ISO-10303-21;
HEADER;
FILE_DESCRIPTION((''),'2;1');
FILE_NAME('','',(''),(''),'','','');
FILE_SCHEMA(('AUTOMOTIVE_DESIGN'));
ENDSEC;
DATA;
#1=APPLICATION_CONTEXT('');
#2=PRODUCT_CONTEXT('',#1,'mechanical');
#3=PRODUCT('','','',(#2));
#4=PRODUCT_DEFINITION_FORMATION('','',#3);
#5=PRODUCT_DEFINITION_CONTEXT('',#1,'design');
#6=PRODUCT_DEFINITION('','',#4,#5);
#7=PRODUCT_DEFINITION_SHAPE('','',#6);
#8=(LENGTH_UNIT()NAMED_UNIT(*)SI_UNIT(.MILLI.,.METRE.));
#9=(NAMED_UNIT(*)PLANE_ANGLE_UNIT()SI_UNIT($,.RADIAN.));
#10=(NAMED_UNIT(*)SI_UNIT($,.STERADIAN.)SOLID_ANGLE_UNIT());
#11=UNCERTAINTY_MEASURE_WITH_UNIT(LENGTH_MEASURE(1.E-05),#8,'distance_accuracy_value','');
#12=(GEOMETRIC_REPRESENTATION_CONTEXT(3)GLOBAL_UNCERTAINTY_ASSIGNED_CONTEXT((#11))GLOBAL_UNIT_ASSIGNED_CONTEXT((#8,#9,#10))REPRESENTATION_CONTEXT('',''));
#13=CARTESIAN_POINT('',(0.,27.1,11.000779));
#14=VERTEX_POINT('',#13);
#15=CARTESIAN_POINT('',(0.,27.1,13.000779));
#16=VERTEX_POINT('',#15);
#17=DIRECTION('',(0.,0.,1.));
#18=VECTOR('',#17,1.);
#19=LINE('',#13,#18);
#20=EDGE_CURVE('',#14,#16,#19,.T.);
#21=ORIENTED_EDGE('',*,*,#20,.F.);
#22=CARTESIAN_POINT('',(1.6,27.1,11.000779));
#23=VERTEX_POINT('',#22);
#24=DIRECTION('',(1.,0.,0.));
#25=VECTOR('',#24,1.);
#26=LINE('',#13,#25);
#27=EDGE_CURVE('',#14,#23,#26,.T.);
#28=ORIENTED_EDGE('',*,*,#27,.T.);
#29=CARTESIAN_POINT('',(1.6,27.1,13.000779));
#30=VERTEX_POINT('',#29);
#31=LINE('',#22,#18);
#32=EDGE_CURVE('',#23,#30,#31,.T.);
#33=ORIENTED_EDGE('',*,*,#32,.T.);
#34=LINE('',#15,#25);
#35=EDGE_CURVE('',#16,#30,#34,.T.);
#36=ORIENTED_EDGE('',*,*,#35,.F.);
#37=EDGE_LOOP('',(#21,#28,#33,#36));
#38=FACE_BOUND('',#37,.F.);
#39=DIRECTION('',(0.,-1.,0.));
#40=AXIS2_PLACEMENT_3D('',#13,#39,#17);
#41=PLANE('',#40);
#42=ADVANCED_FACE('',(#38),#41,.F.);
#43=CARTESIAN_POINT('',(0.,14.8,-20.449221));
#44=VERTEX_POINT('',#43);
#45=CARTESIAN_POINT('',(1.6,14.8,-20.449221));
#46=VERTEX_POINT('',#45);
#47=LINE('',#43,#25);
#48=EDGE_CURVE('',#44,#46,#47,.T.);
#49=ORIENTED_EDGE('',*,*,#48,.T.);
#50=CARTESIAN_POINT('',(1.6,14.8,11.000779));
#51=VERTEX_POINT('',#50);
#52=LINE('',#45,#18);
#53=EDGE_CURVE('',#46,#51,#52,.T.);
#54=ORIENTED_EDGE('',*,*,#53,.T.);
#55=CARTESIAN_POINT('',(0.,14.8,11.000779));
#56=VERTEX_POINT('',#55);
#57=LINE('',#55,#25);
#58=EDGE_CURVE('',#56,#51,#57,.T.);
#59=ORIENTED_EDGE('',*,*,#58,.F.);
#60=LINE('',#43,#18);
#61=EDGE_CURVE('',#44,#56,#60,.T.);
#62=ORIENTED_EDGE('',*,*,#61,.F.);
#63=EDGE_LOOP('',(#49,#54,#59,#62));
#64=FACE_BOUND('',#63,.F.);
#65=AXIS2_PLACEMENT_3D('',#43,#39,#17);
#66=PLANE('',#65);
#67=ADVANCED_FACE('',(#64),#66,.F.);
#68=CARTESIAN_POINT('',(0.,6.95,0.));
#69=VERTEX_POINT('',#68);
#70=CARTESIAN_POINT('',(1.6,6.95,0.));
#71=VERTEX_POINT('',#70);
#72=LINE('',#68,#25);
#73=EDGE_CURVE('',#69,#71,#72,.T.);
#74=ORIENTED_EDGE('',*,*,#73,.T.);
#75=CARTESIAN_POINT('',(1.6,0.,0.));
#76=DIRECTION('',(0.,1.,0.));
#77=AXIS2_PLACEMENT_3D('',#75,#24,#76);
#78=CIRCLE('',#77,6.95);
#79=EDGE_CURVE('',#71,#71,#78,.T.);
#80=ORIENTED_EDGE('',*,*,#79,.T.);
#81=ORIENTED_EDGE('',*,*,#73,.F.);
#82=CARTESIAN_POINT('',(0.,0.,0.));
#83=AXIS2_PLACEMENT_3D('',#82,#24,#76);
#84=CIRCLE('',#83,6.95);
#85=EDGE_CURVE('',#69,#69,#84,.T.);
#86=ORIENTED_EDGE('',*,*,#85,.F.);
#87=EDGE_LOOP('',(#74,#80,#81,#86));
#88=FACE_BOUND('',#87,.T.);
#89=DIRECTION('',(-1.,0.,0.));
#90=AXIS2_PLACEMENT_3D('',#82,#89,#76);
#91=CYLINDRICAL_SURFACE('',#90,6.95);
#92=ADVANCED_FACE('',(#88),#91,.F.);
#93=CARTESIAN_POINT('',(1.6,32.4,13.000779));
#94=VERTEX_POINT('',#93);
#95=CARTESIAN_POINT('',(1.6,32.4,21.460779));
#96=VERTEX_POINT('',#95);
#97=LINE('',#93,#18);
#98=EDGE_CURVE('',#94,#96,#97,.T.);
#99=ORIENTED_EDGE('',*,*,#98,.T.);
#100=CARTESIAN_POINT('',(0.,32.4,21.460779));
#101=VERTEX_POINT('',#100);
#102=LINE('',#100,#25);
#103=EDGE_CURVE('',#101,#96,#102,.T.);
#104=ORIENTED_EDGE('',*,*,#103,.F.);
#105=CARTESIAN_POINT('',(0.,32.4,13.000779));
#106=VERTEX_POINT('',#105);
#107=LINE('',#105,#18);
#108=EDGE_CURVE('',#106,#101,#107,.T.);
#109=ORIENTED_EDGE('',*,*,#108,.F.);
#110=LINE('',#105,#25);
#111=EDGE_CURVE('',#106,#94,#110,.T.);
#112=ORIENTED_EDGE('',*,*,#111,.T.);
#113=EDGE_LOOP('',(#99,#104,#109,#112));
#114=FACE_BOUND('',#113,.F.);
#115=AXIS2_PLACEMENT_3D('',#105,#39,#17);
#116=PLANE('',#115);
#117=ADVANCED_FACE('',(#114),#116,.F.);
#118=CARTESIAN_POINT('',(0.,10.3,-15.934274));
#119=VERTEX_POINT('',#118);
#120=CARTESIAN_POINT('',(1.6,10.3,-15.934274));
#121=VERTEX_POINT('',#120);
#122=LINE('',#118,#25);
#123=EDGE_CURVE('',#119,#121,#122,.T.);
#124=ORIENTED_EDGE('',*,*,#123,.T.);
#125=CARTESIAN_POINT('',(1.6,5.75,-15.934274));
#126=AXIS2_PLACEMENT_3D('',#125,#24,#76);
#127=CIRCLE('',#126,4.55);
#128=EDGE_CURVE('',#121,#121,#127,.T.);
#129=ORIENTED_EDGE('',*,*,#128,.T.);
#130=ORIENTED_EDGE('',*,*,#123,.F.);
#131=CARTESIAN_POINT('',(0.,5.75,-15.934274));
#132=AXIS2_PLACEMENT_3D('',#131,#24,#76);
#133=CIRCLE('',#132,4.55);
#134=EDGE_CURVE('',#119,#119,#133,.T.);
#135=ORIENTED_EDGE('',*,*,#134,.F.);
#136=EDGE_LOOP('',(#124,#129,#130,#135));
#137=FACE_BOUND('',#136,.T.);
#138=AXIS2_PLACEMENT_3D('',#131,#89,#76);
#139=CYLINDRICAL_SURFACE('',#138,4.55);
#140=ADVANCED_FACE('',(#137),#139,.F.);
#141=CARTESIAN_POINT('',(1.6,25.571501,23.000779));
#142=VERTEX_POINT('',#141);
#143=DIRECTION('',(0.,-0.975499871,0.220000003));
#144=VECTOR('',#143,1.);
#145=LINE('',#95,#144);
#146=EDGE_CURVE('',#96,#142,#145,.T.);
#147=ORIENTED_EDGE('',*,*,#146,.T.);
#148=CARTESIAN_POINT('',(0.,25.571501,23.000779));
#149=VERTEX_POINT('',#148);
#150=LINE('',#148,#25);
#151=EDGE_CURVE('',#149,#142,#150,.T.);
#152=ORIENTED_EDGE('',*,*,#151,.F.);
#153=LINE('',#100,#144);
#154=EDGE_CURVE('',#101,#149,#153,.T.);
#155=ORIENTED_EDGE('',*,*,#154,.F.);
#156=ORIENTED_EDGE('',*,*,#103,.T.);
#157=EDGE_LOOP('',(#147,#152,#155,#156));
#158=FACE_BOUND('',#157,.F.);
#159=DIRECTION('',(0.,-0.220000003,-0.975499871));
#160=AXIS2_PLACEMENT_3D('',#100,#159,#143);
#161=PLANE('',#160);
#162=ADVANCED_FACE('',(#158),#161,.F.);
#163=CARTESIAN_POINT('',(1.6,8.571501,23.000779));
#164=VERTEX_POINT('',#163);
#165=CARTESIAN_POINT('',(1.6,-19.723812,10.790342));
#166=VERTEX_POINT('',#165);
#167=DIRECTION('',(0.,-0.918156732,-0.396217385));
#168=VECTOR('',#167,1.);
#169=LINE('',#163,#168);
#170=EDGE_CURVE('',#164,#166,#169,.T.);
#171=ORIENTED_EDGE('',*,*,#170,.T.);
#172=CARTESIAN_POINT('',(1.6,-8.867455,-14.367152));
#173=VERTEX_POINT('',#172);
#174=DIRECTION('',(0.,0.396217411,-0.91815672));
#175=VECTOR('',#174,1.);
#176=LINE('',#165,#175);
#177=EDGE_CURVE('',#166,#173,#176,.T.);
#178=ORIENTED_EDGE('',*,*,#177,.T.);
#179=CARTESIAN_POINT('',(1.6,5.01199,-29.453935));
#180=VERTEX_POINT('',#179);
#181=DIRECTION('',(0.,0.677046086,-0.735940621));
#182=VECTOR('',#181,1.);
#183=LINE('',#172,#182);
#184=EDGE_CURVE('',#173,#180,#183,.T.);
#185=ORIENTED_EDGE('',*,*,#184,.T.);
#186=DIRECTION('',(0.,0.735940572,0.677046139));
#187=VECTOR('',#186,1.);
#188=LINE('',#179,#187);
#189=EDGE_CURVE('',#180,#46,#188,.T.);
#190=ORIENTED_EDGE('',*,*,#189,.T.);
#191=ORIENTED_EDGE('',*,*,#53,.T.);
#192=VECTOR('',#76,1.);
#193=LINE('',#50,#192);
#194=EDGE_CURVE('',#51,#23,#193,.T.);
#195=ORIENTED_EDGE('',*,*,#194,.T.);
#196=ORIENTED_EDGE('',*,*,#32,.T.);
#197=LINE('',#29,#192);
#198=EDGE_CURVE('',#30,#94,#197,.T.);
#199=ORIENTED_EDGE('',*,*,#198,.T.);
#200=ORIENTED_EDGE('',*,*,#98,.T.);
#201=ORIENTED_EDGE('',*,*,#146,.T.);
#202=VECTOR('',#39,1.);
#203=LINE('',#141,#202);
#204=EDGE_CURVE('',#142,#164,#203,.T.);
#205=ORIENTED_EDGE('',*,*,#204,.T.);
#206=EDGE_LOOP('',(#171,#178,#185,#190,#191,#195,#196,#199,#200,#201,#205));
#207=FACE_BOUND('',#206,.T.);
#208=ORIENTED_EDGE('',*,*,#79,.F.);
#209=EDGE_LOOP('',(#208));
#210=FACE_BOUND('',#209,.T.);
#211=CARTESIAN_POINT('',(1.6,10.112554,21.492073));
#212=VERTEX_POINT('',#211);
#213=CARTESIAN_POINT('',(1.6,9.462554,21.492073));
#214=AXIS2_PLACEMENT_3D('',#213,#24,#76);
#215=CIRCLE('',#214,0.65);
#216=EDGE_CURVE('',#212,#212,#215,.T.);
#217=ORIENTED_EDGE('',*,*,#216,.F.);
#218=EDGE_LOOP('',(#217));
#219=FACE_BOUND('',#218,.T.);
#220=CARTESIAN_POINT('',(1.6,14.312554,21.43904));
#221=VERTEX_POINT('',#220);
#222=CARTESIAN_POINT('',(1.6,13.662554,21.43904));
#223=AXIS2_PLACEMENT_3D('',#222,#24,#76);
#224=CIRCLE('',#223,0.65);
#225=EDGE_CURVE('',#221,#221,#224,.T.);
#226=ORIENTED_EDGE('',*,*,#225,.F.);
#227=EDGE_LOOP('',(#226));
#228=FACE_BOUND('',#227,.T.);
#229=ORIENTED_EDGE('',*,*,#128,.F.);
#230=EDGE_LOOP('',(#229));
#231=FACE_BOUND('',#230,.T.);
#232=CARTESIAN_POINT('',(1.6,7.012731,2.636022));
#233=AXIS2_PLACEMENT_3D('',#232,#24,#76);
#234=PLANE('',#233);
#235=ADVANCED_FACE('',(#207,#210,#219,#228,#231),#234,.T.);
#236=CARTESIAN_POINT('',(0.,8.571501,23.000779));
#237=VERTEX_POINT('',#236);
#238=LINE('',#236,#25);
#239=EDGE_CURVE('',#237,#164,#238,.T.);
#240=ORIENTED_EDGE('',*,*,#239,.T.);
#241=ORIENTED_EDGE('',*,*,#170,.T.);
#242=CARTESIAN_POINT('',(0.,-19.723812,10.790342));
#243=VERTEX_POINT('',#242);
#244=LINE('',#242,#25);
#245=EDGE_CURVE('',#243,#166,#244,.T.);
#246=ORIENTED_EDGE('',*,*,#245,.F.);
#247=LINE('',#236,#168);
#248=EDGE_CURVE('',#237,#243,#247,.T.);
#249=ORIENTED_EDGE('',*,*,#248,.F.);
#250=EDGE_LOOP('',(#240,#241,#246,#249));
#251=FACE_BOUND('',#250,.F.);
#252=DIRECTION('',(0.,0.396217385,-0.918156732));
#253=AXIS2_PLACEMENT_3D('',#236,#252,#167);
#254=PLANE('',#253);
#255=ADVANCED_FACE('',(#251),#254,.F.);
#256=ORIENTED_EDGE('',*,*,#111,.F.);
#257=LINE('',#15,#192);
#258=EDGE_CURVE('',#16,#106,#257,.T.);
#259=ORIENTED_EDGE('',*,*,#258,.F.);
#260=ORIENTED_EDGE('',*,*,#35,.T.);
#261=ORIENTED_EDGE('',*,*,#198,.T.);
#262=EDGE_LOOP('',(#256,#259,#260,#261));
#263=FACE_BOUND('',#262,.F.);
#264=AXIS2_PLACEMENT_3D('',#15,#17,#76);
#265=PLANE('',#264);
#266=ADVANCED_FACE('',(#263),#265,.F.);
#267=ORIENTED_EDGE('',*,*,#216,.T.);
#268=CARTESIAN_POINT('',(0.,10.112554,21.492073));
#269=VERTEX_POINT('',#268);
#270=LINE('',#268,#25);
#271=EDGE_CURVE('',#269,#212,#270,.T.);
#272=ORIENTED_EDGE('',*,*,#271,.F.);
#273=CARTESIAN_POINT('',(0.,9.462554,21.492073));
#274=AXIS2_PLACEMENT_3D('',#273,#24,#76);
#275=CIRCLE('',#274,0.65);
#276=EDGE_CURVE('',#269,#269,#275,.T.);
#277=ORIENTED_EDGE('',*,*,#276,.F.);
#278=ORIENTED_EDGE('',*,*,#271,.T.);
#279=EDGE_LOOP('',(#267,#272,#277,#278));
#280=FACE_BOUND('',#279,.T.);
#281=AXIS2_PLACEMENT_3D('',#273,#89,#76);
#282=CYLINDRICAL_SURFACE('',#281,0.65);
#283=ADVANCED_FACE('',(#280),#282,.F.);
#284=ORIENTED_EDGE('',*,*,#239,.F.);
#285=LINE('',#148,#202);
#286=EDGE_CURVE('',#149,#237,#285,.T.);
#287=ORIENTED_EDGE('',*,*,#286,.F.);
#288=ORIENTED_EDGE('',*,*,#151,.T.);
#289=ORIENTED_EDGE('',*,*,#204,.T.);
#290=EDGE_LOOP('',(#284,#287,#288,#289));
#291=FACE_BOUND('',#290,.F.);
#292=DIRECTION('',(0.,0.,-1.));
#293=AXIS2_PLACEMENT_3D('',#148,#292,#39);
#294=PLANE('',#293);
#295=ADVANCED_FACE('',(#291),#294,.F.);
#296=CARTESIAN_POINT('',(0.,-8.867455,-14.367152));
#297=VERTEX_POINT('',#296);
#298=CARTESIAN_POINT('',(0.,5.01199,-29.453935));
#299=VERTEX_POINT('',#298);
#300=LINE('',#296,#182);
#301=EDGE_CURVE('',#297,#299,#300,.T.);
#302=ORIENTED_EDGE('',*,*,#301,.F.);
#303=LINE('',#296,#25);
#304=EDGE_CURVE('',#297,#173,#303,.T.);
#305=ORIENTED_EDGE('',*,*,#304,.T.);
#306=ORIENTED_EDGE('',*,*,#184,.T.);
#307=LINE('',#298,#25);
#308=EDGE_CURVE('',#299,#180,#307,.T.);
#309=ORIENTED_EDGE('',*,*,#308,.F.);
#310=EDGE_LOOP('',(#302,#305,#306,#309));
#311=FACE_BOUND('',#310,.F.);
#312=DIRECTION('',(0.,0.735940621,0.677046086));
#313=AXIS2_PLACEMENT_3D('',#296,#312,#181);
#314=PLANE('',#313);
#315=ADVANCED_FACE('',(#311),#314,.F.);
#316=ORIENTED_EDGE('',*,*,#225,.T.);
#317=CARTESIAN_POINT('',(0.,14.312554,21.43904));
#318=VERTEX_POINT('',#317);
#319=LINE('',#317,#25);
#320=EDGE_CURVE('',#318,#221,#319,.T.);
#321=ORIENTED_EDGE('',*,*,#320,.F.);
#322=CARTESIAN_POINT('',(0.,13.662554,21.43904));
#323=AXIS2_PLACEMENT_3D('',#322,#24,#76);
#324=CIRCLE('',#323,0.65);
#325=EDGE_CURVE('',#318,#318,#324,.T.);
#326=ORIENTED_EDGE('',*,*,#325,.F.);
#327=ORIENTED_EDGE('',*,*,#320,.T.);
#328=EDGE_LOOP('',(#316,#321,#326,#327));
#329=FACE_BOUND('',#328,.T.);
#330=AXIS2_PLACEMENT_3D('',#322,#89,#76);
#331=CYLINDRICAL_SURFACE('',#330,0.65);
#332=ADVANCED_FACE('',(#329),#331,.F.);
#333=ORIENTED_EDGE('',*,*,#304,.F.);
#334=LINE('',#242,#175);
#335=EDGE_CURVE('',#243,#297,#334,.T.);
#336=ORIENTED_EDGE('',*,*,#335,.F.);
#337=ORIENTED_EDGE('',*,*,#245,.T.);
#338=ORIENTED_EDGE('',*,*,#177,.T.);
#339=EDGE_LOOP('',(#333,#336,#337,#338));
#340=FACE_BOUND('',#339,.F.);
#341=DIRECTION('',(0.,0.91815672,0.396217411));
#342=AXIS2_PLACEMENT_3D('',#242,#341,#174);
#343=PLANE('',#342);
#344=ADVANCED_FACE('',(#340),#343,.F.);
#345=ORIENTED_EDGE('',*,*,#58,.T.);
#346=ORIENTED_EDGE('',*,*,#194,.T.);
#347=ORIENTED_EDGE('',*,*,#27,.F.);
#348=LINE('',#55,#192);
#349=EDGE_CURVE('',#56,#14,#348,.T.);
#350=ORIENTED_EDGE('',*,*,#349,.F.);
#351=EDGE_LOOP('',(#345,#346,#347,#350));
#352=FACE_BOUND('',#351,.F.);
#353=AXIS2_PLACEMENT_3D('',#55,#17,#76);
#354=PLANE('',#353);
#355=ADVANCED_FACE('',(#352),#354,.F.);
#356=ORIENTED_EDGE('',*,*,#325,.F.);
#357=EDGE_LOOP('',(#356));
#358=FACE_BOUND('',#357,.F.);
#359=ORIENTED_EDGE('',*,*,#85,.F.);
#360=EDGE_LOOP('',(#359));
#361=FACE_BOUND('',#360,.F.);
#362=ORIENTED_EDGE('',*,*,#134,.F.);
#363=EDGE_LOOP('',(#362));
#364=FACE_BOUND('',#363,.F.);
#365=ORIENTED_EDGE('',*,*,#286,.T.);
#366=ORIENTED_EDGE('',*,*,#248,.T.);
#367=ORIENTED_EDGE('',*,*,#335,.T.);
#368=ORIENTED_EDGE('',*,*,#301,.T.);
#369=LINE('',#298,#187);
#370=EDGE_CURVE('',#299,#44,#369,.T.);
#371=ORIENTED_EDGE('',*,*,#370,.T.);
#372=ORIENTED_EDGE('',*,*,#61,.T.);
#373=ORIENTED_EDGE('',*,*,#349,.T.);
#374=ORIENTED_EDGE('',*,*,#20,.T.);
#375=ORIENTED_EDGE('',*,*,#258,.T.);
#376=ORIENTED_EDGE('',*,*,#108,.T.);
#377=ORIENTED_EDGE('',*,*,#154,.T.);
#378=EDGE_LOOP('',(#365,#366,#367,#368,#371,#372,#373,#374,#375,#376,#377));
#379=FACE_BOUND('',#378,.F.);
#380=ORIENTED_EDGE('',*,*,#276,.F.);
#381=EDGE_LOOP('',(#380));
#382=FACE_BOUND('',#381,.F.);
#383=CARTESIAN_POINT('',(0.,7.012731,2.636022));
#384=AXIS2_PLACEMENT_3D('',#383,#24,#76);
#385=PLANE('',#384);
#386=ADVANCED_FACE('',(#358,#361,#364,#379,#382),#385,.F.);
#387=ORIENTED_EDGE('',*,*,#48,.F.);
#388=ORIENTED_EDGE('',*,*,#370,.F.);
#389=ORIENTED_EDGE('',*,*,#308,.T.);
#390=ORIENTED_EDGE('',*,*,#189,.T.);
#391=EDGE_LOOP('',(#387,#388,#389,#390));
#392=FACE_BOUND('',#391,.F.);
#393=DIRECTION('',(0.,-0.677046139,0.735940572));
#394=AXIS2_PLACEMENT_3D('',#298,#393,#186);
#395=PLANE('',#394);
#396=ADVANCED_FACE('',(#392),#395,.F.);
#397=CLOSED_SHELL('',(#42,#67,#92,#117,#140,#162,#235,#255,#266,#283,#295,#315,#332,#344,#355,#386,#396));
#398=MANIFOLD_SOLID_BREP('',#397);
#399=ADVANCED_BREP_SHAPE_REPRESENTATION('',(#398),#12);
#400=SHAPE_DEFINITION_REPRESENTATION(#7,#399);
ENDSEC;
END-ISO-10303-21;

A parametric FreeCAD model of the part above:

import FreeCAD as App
import Part
import Sketcher

V = App.Vector
Q = App.Units.Quantity


def add_polygon(sketch, points):
    """Adds a closed chain of lines whose ends are joined by coincident constraints."""
    first, n = sketch.GeometryCount, len(points)
    for a, b in zip(points, points[1:] + points[:1]):
        sketch.addGeometry(Part.LineSegment(App.Vector(*a, 0), App.Vector(*b, 0)), False)
    for i in range(n):
        sketch.addConstraint(Sketcher.Constraint("Coincident", first + i, 2, first + (i + 1) % n, 1))

doc = App.newDocument("Part")
body = doc.addObject("PartDesign::Body", "Body")

# Sketch on YZ plane
sketch1 = body.newObject("Sketcher::SketchObject", "Sketch")
sketch1.AttachmentSupport = (doc.getObject("YZ_Plane"), [""])
sketch1.MapMode = "FlatFace"
add_polygon(sketch1, [(5, -29.5), (14.8, -20.4), (14.8, 11), (27.1, 11), (27.1, 13), (32.4, 13), (32.4, 21.5), (25.6, 23), (8.6, 23), (-19.7, 10.8), (-8.9, -14.4)])  # lines 0-10
sketch1.addGeometry(Part.Circle(V(0, 0, 0), V(0, 0, 1), 7), False)  # 11
sketch1.addGeometry(Part.Circle(V(5.8, -15.9, 0), V(0, 0, 1), 4.5), False)  # 12
sketch1.addGeometry(Part.Circle(V(9.5, 21.5, 0), V(0, 0, 1), 0.7), False)  # 13
sketch1.addGeometry(Part.Circle(V(13.7, 21.4, 0), V(0, 0, 1), 0.7), False)  # 14
sketch1.addConstraint(Sketcher.Constraint("Vertical", 1))
sketch1.addConstraint(Sketcher.Constraint("Horizontal", 2))
sketch1.addConstraint(Sketcher.Constraint("Vertical", 3))
sketch1.addConstraint(Sketcher.Constraint("Horizontal", 4))
sketch1.addConstraint(Sketcher.Constraint("Vertical", 5))
sketch1.addConstraint(Sketcher.Constraint("Horizontal", 7))
sketch1.addConstraint(Sketcher.Constraint("Coincident", 11, 3, -1, 1))
sketch1.addConstraint(Sketcher.Constraint("Equal", 13, 14))
sketch1.addConstraint(Sketcher.Constraint("Perpendicular", 8, 9))
sketch1.addConstraint(Sketcher.Constraint("Perpendicular", 0, 10))
sketch1.addConstraint(Sketcher.Constraint("Diameter", 11, Q("13.9 mm")))
sketch1.addConstraint(Sketcher.Constraint("Diameter", 12, Q("9.1 mm")))
sketch1.addConstraint(Sketcher.Constraint("Diameter", 13, Q("1.3 mm")))
sketch1.addConstraint(Sketcher.Constraint("DistanceX", 7, 2, 7, 1, Q("17 mm")))
sketch1.addConstraint(Sketcher.Constraint("DistanceY", 3, 1, 3, 2, Q("2 mm")))
sketch1.addConstraint(Sketcher.Constraint("Distance", 6, Q("7 mm")))
sketch1.addConstraint(Sketcher.Constraint("DistanceX", 2, 1, 2, 2, Q("12.3 mm")))
sketch1.addConstraint(Sketcher.Constraint("DistanceX", 4, 1, 4, 2, Q("5.3 mm")))
sketch1.addConstraint(Sketcher.Constraint("DistanceY", 3, 2, 6, 2, Q("10 mm")))
sketch1.addConstraint(Sketcher.Constraint("Distance", 0, Q("13.300001 mm")))
sketch1.addConstraint(Sketcher.Constraint("Distance", 9, Q("27.4 mm")))
sketch1.addConstraint(Sketcher.Constraint("Distance", 10, Q("20.5 mm")))
sketch1.addConstraint(Sketcher.Constraint("DistanceY", 1, 1, 1, 2, Q("31.45 mm")))
sketch1.addConstraint(Sketcher.Constraint("DistanceY", 5, 1, 5, 2, Q("8.46 mm")))
sketch1.addConstraint(Sketcher.Constraint("DistanceX", -1, 1, 0, 2, Q("14.8 mm")))
sketch1.addConstraint(Sketcher.Constraint("DistanceX", 13, 3, 14, 3, Q("4.2 mm")))
sketch1.addConstraint(Sketcher.Constraint("DistanceX", -1, 1, 12, 3, Q("5.75 mm")))
sketch1.addConstraint(Sketcher.Constraint("Distance", 8, Q("30.81752 mm")))
sketch1.addConstraint(Sketcher.Constraint("DistanceY", -1, 1, 14, 3, Q("21.43904 mm")))
sketch1.addConstraint(Sketcher.Constraint("DistanceY", 0, 2, -1, 1, Q("20.449221 mm")))
sketch1.addConstraint(Sketcher.Constraint("DistanceY", 8, 2, 13, 3, Q("10.701731 mm")))
sketch1.addConstraint(Sketcher.Constraint("DistanceY", 12, 3, 9, 2, Q("1.567122 mm")))
sketch1.addConstraint(Sketcher.Constraint("DistanceX", -1, 1, 13, 3, Q("9.462554 mm")))
pad1 = body.newObject("PartDesign::Pad", "Pad")
pad1.Profile = sketch1
pad1.Length = 1.6

doc.recompute()
